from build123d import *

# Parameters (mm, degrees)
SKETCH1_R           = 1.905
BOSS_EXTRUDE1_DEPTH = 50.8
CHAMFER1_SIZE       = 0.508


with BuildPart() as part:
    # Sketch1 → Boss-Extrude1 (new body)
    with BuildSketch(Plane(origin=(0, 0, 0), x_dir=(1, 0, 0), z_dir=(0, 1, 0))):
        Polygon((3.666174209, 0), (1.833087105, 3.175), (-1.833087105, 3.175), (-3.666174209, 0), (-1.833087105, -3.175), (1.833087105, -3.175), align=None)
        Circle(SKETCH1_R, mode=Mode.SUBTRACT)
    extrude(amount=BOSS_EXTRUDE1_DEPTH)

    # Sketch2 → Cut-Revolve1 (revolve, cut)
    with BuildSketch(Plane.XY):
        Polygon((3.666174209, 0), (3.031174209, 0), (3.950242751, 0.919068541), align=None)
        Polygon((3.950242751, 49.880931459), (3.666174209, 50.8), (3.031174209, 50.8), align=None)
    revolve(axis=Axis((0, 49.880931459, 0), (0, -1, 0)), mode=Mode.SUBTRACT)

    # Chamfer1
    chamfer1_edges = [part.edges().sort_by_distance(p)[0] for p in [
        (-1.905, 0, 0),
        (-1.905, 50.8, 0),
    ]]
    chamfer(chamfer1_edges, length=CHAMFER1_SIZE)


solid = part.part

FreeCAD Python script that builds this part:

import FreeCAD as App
import Part
import Sketcher

V = App.Vector
Q = App.Units.Quantity


def edges_at(feature, points):
    """Names of the edges that pass closest to the given points."""
    edges = feature.Shape.Edges
    near = lambda p: min(range(len(edges)), key=lambda i: edges[i].distToShape(Part.Vertex(*p))[0])
    return sorted({f"Edge{near(p) + 1}" for p in points})

doc = App.newDocument("Part")
body = doc.addObject("PartDesign::Body", "Body")

# Sketch on XZ plane
sketch1 = body.newObject("Sketcher::SketchObject", "Sketch")
sketch1.AttachmentSupport = (doc.getObject("XZ_Plane"), [""])
sketch1.MapMode = "FlatFace"
sketch1.addGeometry([
    Part.LineSegment(V(3.7, 0, 0), V(1.8, -3.2, 0)),  # 0
    Part.LineSegment(V(1.8, -3.2, 0), V(-1.8, -3.2, 0)),  # 1
    Part.LineSegment(V(-1.8, -3.2, 0), V(-3.7, 0, 0)),  # 2
    Part.LineSegment(V(-3.7, 0, 0), V(-1.8, 3.2, 0)),  # 3
    Part.LineSegment(V(-1.8, 3.2, 0), V(1.8, 3.2, 0)),  # 4
    Part.LineSegment(V(1.8, 3.2, 0), V(3.7, 0, 0)),  # 5
    Part.Circle(V(0, 0, 0), V(0, 0, 1), 1.9),  # 6
], False)
sketch1.addConstraint([
    Sketcher.Constraint("Coincident", 0, 2, 1, 1),
    Sketcher.Constraint("Coincident", 1, 2, 2, 1),
    Sketcher.Constraint("Coincident", 2, 2, 3, 1),
    Sketcher.Constraint("Coincident", 3, 2, 4, 1),
    Sketcher.Constraint("Coincident", 4, 2, 5, 1),
    Sketcher.Constraint("Coincident", 5, 2, 0, 1),
    Sketcher.Constraint("Horizontal", 1),
    Sketcher.Constraint("Horizontal", 4),
    Sketcher.Constraint("Coincident", 6, 3, -1, 1),
    Sketcher.Constraint("Symmetric", 0, 2, 3, 2, -1, 1),
    Sketcher.Constraint("Symmetric", 2, 2, 5, 2, -1, 1),
    Sketcher.Constraint("PointOnObject", 2, 2, -1),
    Sketcher.Constraint("Parallel", 2, 5),
    Sketcher.Constraint("Vertical", 1, 2, 3, 2),
    Sketcher.Constraint("Diameter", 6, Q("0.15 in")),
    Sketcher.Constraint("Angle", 0, Q("-120 deg")),
    Sketcher.Constraint("DistanceY", 1, 2, 3, 2, Q("0.25 in")),
    Sketcher.Constraint("DistanceX", 1, 2, 1, 1, 3.666174),
])
pad1 = body.newObject("PartDesign::Pad", "Pad")
pad1.Profile = sketch1
pad1.Length = Q("2 in")
pad1.Reversed = True

# Sketch on XY plane
sketch2 = body.newObject("Sketcher::SketchObject", "Sketch001")
sketch2.AttachmentSupport = (doc.getObject("XY_Plane"), [""])
sketch2.MapMode = "FlatFace"
sketch2.addGeometry([
    Part.LineSegment(V(3, 0, 0), V(3.7, 0, 0)),  # 0
    Part.LineSegment(V(3.7, 0, 0), V(4, 0.9, 0)),  # 1
    Part.LineSegment(V(4, 0.9, 0), V(3, 0, 0)),  # 2
    Part.LineSegment(V(4, 49.9, 0), V(3.7, 50.8, 0)),  # 3
    Part.LineSegment(V(3.7, 50.8, 0), V(3, 50.8, 0)),  # 4
    Part.LineSegment(V(3, 50.8, 0), V(4, 49.9, 0)),  # 5
], False)
sketch2.addConstraint([
    Sketcher.Constraint("Coincident", 0, 2, 1, 1),
    Sketcher.Constraint("Coincident", 1, 2, 2, 1),
    Sketcher.Constraint("Coincident", 2, 2, 0, 1),
    Sketcher.Constraint("Coincident", 3, 2, 4, 1),
    Sketcher.Constraint("Coincident", 4, 2, 5, 1),
    Sketcher.Constraint("Coincident", 5, 2, 3, 1),
    Sketcher.Constraint("Horizontal", 0),
    Sketcher.Constraint("Horizontal", 4),
    Sketcher.Constraint("PointOnObject", 0, 2, -1),
    Sketcher.Constraint("Perpendicular", 2, 5),
    Sketcher.Constraint("Vertical", 0, 2, 3, 2),
    Sketcher.Constraint("Vertical", 2, 2, 4, 2),
    Sketcher.Constraint("Vertical", 1, 2, 5, 2),
    Sketcher.Constraint("Equal", 1, 3),
    Sketcher.Constraint("DistanceY", -1, 1, 3, 2, Q("2 in")),
    Sketcher.Constraint("DistanceX", 0, 1, 0, 2, Q("0.025 in")),
    Sketcher.Constraint("Distance", 2, 1.299759),
    Sketcher.Constraint("DistanceX", -1, 1, 0, 2, 3.666174),
])
groove = body.newObject("PartDesign::Groove", "Groove")
groove.Profile = sketch2
groove.ReferenceAxis = (sketch2, ["V_Axis"])
groove.Angle = 360
doc.recompute()

chamfer = body.newObject("PartDesign::Chamfer", "Chamfer")
chamfer.Base = (groove, edges_at(groove, [(-1.905, 0, 0), (-1.905, 50.8, 0)]))
chamfer.Size = Q("0.02 in")

doc.recompute()
